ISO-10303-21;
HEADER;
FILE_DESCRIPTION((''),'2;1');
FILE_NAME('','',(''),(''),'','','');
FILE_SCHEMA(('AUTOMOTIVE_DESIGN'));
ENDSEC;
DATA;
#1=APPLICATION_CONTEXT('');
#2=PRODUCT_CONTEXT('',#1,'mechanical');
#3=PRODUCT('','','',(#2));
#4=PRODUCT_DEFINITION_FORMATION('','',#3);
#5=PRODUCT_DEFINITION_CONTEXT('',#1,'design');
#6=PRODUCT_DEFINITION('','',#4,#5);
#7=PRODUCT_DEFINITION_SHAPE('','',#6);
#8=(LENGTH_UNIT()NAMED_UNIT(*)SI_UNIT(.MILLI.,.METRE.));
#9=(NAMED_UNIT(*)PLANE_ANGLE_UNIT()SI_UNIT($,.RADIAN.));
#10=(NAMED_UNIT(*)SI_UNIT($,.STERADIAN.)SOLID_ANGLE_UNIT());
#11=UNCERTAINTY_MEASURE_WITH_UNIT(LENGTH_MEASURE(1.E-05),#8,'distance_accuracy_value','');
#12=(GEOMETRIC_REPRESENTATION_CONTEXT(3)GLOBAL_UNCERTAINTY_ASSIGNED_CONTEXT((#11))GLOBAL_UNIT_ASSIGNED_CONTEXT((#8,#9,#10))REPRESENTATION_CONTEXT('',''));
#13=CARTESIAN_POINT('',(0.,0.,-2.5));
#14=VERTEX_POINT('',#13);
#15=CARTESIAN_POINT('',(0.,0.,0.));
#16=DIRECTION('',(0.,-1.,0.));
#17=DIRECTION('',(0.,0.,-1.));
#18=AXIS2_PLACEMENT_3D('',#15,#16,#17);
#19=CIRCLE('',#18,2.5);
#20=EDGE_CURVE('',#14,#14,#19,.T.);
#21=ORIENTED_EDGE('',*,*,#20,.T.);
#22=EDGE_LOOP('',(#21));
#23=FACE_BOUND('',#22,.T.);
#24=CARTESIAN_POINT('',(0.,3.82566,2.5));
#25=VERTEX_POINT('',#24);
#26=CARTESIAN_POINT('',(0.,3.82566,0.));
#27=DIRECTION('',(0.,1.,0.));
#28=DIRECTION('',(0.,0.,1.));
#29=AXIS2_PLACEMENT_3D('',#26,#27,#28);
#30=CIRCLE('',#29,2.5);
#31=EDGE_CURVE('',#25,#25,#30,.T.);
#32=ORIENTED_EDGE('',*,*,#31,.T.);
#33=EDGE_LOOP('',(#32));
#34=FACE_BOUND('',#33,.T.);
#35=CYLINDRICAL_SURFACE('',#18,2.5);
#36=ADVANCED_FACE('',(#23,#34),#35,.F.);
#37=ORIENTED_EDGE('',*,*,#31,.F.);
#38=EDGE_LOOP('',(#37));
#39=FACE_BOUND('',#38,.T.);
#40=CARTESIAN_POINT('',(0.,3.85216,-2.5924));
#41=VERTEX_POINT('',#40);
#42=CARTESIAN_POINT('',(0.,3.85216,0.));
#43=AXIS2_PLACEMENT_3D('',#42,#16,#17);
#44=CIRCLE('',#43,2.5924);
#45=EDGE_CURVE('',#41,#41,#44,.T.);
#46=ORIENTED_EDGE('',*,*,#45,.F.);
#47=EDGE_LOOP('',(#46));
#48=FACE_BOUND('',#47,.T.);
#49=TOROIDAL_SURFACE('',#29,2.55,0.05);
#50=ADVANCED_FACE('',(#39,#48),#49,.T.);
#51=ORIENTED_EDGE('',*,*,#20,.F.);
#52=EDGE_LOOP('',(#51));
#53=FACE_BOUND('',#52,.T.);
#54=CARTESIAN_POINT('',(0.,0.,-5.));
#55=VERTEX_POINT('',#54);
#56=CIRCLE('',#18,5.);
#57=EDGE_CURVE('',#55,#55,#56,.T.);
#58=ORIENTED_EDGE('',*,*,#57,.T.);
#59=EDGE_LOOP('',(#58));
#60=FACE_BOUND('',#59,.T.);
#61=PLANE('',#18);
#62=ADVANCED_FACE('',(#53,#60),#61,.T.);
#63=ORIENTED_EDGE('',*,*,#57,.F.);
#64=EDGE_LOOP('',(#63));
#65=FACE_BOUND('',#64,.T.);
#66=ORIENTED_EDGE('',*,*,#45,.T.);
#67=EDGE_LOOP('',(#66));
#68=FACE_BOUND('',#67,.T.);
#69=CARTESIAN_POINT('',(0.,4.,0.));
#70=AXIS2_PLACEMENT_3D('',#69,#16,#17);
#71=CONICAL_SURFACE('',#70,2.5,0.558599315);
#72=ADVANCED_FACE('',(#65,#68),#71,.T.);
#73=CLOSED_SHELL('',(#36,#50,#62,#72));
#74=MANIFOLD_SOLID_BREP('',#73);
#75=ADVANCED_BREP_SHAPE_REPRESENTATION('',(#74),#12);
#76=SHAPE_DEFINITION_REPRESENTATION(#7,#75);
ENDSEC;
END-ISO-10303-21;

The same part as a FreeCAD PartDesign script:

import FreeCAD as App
import Part
import Sketcher


def edges_at(feature, points):
    """Names of the edges that pass closest to the given points."""
    edges = feature.Shape.Edges
    near = lambda p: min(range(len(edges)), key=lambda i: edges[i].distToShape(Part.Vertex(*p))[0])
    return sorted({f"Edge{near(p) + 1}" for p in points})


def add_polygon(sketch, points):
    """Adds a closed chain of lines whose ends are joined by coincident constraints."""
    first, n = sketch.GeometryCount, len(points)
    for a, b in zip(points, points[1:] + points[:1]):
        sketch.addGeometry(Part.LineSegment(App.Vector(*a, 0), App.Vector(*b, 0)), False)
    for i in range(n):
        sketch.addConstraint(Sketcher.Constraint("Coincident", first + i, 2, first + (i + 1) % n, 1))

doc = App.newDocument("Part")
body = doc.addObject("PartDesign::Body", "Body")

sketch1 = body.newObject("Sketcher::SketchObject", "Sketch")
sketch1.AttachmentSupport = (doc.getObject("XY_Plane"), [""])
sketch1.MapMode = "FlatFace"
add_polygon(sketch1, [(2.5, 4), (2.5, 0), (5, 0)])
sketch1.addConstraint([
    Sketcher.Constraint("Vertical", 0),
    Sketcher.Constraint("Horizontal", 1),
    Sketcher.Constraint("PointOnObject", 0, 2, -1),
    Sketcher.Constraint("DistanceY", 0, 2, 0, 1, 4.0),
    Sketcher.Constraint("DistanceX", 1, 1, 1, 2, 2.5),
    Sketcher.Constraint("DistanceX", -1, 1, 1, 2, 5.0),
])
revolution = body.newObject("PartDesign::Revolution", "Revolution")
revolution.Profile = sketch1
revolution.ReferenceAxis = (sketch1, ["V_Axis"])
revolution.Angle = 360
doc.recompute()

fillet = body.newObject("PartDesign::Fillet", "Fillet")
fillet.Base = (revolution, edges_at(revolution, [(0, 4, 2.5)]))
fillet.Radius = 0.05

doc.recompute()
